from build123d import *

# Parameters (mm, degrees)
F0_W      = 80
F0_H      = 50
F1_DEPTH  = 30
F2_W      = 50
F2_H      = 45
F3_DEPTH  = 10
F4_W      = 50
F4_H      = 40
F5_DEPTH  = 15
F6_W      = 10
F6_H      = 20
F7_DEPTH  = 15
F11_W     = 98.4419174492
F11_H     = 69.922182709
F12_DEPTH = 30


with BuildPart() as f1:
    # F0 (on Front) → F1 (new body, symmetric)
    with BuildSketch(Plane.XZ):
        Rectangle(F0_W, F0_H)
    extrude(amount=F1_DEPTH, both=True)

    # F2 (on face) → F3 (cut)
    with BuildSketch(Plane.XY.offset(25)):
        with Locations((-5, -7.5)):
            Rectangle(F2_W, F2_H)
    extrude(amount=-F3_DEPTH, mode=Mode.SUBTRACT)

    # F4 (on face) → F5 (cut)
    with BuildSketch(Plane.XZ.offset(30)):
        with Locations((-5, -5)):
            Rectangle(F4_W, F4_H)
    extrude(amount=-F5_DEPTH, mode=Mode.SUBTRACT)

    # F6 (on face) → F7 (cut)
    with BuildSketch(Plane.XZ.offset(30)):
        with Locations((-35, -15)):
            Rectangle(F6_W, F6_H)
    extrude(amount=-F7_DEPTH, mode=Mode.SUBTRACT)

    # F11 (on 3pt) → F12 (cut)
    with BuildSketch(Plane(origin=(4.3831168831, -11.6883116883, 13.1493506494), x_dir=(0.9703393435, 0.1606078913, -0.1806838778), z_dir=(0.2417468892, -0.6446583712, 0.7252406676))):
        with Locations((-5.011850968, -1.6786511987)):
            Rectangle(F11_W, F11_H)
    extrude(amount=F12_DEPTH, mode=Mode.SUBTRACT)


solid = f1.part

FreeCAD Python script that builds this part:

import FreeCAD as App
import Part
import Sketcher


def add_polygon(sketch, points):
    """Adds a closed chain of lines whose ends are joined by coincident constraints."""
    first, n = sketch.GeometryCount, len(points)
    for a, b in zip(points, points[1:] + points[:1]):
        sketch.addGeometry(Part.LineSegment(App.Vector(*a, 0), App.Vector(*b, 0)), False)
    for i in range(n):
        sketch.addConstraint(Sketcher.Constraint("Coincident", first + i, 2, first + (i + 1) % n, 1))

doc = App.newDocument("Part")
body = doc.addObject("PartDesign::Body", "Body")

# Sketch on XZ plane
sketch1 = body.newObject("Sketcher::SketchObject", "Sketch")
sketch1.AttachmentSupport = (doc.getObject("XZ_Plane"), [""])
sketch1.MapMode = "FlatFace"
add_polygon(sketch1, [(-40, 25), (-40, -25), (40, -25), (40, 25)])  # lines 0-3
sketch1.addConstraint([
    Sketcher.Constraint("Vertical", 0),
    Sketcher.Constraint("Horizontal", 1),
    Sketcher.Constraint("Vertical", 2),
    Sketcher.Constraint("Horizontal", 3),
    Sketcher.Constraint("Symmetric", 0, 2, 2, 2, -1, 1),
    Sketcher.Constraint("DistanceX", 1, 1, 1, 2, 80.0),
    Sketcher.Constraint("DistanceY", 0, 2, 0, 1, 50.0),
])
pad1 = body.newObject("PartDesign::Pad", "Pad")
pad1.Profile = sketch1
pad1.Length = 60
pad1.Midplane = True

# Sketch on XY plane
sketch2 = body.newObject("Sketcher::SketchObject", "Sketch001")
sketch2.AttachmentSupport = (doc.getObject("XY_Plane"), [""])
sketch2.MapMode = "FlatFace"
sketch2.AttachmentOffset = App.Placement(App.Vector(0, 0, 25), App.Rotation())
add_polygon(sketch2, [(-30, 15), (-30, -30), (20, -30), (20, 15)])  # lines 0-3
sketch2.addConstraint([
    Sketcher.Constraint("Vertical", 0),
    Sketcher.Constraint("Horizontal", 1),
    Sketcher.Constraint("Vertical", 2),
    Sketcher.Constraint("Horizontal", 3),
    Sketcher.Constraint("DistanceX", 1, 1, 1, 2, 50.0),
    Sketcher.Constraint("DistanceY", 0, 2, 0, 1, 45.0),
    Sketcher.Constraint("DistanceX", 0, 2, -1, 1, 30.0),
    Sketcher.Constraint("DistanceY", 0, 2, -1, 1, 30.0),
])
pocket1 = body.newObject("PartDesign::Pocket", "Pocket")
pocket1.Profile = sketch2
pocket1.Length = 10

# Sketch on XZ plane
sketch3 = body.newObject("Sketcher::SketchObject", "Sketch002")
sketch3.AttachmentSupport = (doc.getObject("XZ_Plane"), [""])
sketch3.MapMode = "FlatFace"
sketch3.AttachmentOffset = App.Placement(App.Vector(0, 0, 30), App.Rotation())
add_polygon(sketch3, [(-30, 15), (-30, -25), (20, -25), (20, 15)])  # lines 0-3
sketch3.addConstraint([
    Sketcher.Constraint("Vertical", 0),
    Sketcher.Constraint("Horizontal", 1),
    Sketcher.Constraint("Vertical", 2),
    Sketcher.Constraint("Horizontal", 3),
    Sketcher.Constraint("DistanceX", 1, 1, 1, 2, 50.0),
    Sketcher.Constraint("DistanceY", 0, 2, 0, 1, 40.0),
    Sketcher.Constraint("DistanceX", 0, 2, -1, 1, 30.0),
    Sketcher.Constraint("DistanceY", 0, 2, -1, 1, 25.0),
])
pocket2 = body.newObject("PartDesign::Pocket", "Pocket001")
pocket2.Profile = sketch3
pocket2.Length = 15

# Sketch on XZ plane
sketch4 = body.newObject("Sketcher::SketchObject", "Sketch003")
sketch4.AttachmentSupport = (doc.getObject("XZ_Plane"), [""])
sketch4.MapMode = "FlatFace"
sketch4.AttachmentOffset = App.Placement(App.Vector(0, 0, 30), App.Rotation())
add_polygon(sketch4, [(-40, -5), (-40, -25), (-30, -25), (-30, -5)])  # lines 0-3
sketch4.addConstraint([
    Sketcher.Constraint("Vertical", 0),
    Sketcher.Constraint("Horizontal", 1),
    Sketcher.Constraint("Vertical", 2),
    Sketcher.Constraint("Horizontal", 3),
    Sketcher.Constraint("DistanceX", 1, 1, 1, 2, 10.0),
    Sketcher.Constraint("DistanceY", 0, 2, 0, 1, 20.0),
    Sketcher.Constraint("DistanceX", 0, 2, -1, 1, 40.0),
    Sketcher.Constraint("DistanceY", 0, 2, -1, 1, 25.0),
])
pocket3 = body.newObject("PartDesign::Pocket", "Pocket002")
pocket3.Profile = sketch4
pocket3.Length = 15

# Sketch on an angled plane
sketch5 = body.newObject("Sketcher::SketchObject", "Sketch004")
sketch5.Placement = App.Placement(App.Vector(4.383117, -11.688312, 13.149351), App.Rotation(App.Vector(0.970339344, 0.160607891, -0.180683878), App.Vector(0, 0.747409319, 0.664363839), App.Vector(0.241746889, -0.644658371, 0.725240668), "ZXY"))
add_polygon(sketch5, [(-54, 33), (-54, -37), (44, -37), (44, 33)])  # lines 0-3
sketch5.addConstraint([
    Sketcher.Constraint("Vertical", 0),
    Sketcher.Constraint("Horizontal", 1),
    Sketcher.Constraint("Vertical", 2),
    Sketcher.Constraint("Horizontal", 3),
    Sketcher.Constraint("DistanceX", 1, 1, 1, 2, 98.441918),
    Sketcher.Constraint("DistanceY", 0, 2, 0, 1, 69.922183),
    Sketcher.Constraint("DistanceX", 0, 2, -1, 1, 54.23281),
    Sketcher.Constraint("DistanceY", -1, 1, 2, 2, 33.28244),
])
pocket4 = body.newObject("PartDesign::Pocket", "Pocket003")
pocket4.Profile = sketch5
pocket4.Length = 30
pocket4.Reversed = True

doc.recompute()
